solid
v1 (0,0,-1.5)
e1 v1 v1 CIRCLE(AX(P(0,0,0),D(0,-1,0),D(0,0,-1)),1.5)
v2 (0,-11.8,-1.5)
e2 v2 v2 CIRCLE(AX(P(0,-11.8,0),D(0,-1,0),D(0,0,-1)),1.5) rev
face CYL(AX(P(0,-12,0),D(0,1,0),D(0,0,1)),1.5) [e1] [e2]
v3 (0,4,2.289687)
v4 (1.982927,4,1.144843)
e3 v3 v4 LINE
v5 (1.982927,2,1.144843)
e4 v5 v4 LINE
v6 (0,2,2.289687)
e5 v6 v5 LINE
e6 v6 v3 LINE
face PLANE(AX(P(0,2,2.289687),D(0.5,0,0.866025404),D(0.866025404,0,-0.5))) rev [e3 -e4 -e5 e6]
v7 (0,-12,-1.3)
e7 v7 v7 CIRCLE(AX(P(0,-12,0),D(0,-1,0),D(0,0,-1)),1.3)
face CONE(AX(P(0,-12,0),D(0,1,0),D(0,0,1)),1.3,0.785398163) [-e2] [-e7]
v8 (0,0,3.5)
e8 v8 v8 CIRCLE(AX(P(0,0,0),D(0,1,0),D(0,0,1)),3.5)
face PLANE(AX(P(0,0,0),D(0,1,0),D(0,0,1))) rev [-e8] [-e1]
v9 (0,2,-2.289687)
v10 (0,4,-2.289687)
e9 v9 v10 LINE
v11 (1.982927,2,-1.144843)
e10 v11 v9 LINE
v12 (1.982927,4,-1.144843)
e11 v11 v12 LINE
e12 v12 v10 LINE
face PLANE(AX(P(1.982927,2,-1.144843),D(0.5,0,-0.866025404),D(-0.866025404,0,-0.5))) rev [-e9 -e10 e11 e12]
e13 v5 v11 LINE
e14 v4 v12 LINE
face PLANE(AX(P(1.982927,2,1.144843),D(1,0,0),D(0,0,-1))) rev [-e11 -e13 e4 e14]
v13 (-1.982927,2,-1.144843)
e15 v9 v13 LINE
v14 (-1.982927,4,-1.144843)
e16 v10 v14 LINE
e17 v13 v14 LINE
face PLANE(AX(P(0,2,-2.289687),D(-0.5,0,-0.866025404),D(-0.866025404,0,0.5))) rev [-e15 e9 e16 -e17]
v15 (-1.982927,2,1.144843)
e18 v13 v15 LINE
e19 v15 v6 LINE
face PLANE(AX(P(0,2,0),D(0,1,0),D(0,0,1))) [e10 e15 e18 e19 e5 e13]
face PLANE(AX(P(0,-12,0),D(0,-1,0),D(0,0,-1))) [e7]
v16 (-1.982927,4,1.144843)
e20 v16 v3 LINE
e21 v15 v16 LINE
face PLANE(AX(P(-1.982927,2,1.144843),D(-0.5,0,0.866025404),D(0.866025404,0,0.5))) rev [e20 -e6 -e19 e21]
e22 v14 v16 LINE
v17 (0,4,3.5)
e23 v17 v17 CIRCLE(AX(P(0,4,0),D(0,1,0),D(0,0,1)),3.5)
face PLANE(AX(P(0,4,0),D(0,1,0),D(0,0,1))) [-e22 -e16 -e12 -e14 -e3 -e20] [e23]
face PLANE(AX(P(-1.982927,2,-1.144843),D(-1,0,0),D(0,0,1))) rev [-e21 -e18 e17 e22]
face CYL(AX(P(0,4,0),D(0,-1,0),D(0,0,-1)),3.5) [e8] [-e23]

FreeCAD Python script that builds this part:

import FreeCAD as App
import Part
import Sketcher
Q = App.Units.Quantity


def edges_at(feature, points):
    """Names of the edges that pass closest to the given points."""
    edges = feature.Shape.Edges
    near = lambda p: min(range(len(edges)), key=lambda i: edges[i].distToShape(Part.Vertex(*p))[0])
    return sorted({f"Edge{near(p) + 1}" for p in points})

doc = App.newDocument("Part")
body = doc.addObject("PartDesign::Body", "Body")

sketch1 = doc.addObject("Sketcher::SketchObject", "Sketch")
body.addObject(sketch1)
sketch1.AttachmentSupport = (doc.XZ_Plane, [""])
sketch1.MapMode = "FlatFace"
sketch1.addGeometry(Part.Circle(App.Vector(0, 0, 0), App.Vector(0, 0, 1), 3.5), False)
sketch1.addConstraint(Sketcher.Constraint("Coincident", 0, 3, -1, 1))
sketch1.addConstraint(Sketcher.Constraint("Diameter", 0, Q("7 mm")))
pad1 = doc.addObject("PartDesign::Pad", "Pad")
body.addObject(pad1)
pad1.Profile = sketch1
pad1.Length = 4
pad1.Reversed = True

sketch2 = doc.addObject("Sketcher::SketchObject", "Sketch001")
body.addObject(sketch2)
sketch2.AttachmentSupport = (doc.XZ_Plane, [""])
sketch2.MapMode = "FlatFace"
sketch2.addGeometry(Part.Circle(App.Vector(0, 0, 0), App.Vector(0, 0, 1), 1.5), False)
sketch2.addConstraint(Sketcher.Constraint("Coincident", 0, 3, -1, 1))
sketch2.addConstraint(Sketcher.Constraint("Diameter", 0, Q("3 mm")))
pad2 = doc.addObject("PartDesign::Pad", "Pad001")
body.addObject(pad2)
pad2.Profile = sketch2
pad2.Length = 12
doc.recompute()

chamfer = doc.addObject("PartDesign::Chamfer", "Chamfer")
body.addObject(chamfer)
chamfer.Base = (pad2, edges_at(pad2, [(0, -12, 1.5)]))
chamfer.Size = 0.2

sketch3 = doc.addObject("Sketcher::SketchObject", "Sketch002")
body.addObject(sketch3)
sketch3.AttachmentSupport = (doc.XZ_Plane, [""])
sketch3.MapMode = "FlatFace"
sketch3.AttachmentOffset = App.Placement(App.Vector(0, 0, -4), App.Rotation())
sketch3.addGeometry(Part.LineSegment(App.Vector(0, -2.289687, 0), App.Vector(-1.982927, -1.144843, 0)), False)
sketch3.addGeometry(Part.LineSegment(App.Vector(-1.982927, -1.144843, 0), App.Vector(-1.982927, 1.144843, 0)), False)
sketch3.addGeometry(Part.LineSegment(App.Vector(-1.982927, 1.144843, 0), App.Vector(0, 2.289687, 0)), False)
sketch3.addGeometry(Part.LineSegment(App.Vector(0, 2.289687, 0), App.Vector(1.982927, 1.144843, 0)), False)
sketch3.addGeometry(Part.LineSegment(App.Vector(1.982927, 1.144843, 0), App.Vector(1.982927, -1.144843, 0)), False)
sketch3.addGeometry(Part.LineSegment(App.Vector(1.982927, -1.144843, 0), App.Vector(0, -2.289687, 0)), False)
sketch3.addConstraint(Sketcher.Constraint("Coincident", 0, 2, 1, 1))
sketch3.addConstraint(Sketcher.Constraint("Coincident", 1, 2, 2, 1))
sketch3.addConstraint(Sketcher.Constraint("Coincident", 2, 2, 3, 1))
sketch3.addConstraint(Sketcher.Constraint("Coincident", 3, 2, 4, 1))
sketch3.addConstraint(Sketcher.Constraint("Coincident", 4, 2, 5, 1))
sketch3.addConstraint(Sketcher.Constraint("Coincident", 5, 2, 0, 1))
sketch3.addConstraint(Sketcher.Constraint("Vertical", 1))
sketch3.addConstraint(Sketcher.Constraint("Vertical", 4))
sketch3.addConstraint(Sketcher.Constraint("Symmetric", 0, 2, 3, 2, -1, 1))
sketch3.addConstraint(Sketcher.Constraint("Symmetric", 2, 2, 5, 2, -1, 1))
sketch3.addConstraint(Sketcher.Constraint("PointOnObject", 2, 2, -2))
sketch3.addConstraint(Sketcher.Constraint("Parallel", 2, 5))
sketch3.addConstraint(Sketcher.Constraint("Horizontal", 1, 2, 3, 2))
sketch3.addConstraint(Sketcher.Constraint("Angle", 0, Q("150 deg")))
sketch3.addConstraint(Sketcher.Constraint("DistanceY", 1, 1, 1, 2, Q("2.289687 mm")))
sketch3.addConstraint(Sketcher.Constraint("DistanceY", 0, 2, 2, 2, Q("3.43453 mm")))
pocket1 = doc.addObject("PartDesign::Pocket", "Pocket")
body.addObject(pocket1)
pocket1.Profile = sketch3
pocket1.Length = 2
pocket1.Reversed = True

doc.recompute()
